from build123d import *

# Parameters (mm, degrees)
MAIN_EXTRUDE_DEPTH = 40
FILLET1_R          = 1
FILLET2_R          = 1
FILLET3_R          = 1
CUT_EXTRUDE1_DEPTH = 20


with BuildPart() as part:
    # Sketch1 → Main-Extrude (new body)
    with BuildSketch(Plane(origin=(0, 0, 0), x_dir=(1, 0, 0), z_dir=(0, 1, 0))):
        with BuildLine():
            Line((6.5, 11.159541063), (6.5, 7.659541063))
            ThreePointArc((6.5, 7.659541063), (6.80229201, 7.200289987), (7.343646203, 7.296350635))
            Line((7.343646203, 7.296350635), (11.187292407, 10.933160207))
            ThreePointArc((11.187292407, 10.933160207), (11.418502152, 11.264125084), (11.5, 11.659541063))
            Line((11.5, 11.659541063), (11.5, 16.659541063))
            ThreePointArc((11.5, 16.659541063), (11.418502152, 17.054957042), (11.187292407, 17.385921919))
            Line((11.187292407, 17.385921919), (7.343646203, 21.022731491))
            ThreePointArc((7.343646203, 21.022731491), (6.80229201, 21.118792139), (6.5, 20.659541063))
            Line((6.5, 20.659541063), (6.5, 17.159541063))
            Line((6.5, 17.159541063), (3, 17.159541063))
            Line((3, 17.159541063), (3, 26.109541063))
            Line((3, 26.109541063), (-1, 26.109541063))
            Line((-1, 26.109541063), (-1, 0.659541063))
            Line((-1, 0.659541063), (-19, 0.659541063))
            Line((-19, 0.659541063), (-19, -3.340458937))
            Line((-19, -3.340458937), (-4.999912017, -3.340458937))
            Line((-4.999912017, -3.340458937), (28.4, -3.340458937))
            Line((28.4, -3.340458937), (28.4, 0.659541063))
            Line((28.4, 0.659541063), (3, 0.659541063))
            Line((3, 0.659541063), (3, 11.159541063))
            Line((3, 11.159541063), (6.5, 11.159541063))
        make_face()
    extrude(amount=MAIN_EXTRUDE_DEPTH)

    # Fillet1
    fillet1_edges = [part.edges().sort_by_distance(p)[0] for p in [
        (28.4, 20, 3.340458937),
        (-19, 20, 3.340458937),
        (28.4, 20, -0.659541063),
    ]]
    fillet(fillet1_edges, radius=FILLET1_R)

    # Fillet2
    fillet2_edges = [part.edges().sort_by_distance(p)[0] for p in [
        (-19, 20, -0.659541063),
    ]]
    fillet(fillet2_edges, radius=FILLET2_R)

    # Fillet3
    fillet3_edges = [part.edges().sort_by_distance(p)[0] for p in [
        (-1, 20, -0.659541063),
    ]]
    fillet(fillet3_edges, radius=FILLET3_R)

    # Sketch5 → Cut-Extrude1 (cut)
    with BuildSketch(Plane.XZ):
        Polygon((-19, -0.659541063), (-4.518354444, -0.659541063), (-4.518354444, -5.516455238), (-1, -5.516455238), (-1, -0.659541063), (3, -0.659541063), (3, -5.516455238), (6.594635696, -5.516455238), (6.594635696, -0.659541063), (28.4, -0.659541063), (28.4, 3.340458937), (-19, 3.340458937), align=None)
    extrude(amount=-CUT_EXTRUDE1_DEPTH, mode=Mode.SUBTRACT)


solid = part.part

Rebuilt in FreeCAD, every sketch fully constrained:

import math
import FreeCAD as App
import Part
import Sketcher


def edges_at(feature, points):
    """Names of the edges that pass closest to the given points."""
    edges = feature.Shape.Edges
    near = lambda p: min(range(len(edges)), key=lambda i: edges[i].distToShape(Part.Vertex(*p))[0])
    return sorted({f"Edge{near(p) + 1}" for p in points})

doc = App.newDocument("Part")
body = doc.addObject("PartDesign::Body", "Body")

# Sketch on XZ plane
sketch1 = doc.addObject("Sketcher::SketchObject", "Sketch")
body.addObject(sketch1)
sketch1.AttachmentSupport = (doc.XZ_Plane, [""])
sketch1.MapMode = "FlatFace"
sketch1.addGeometry([
    Part.LineSegment(App.Vector(6.5, -11.2, 0), App.Vector(6.5, -7.7, 0)),  # 0
    Part.ArcOfCircle(Part.Circle(App.Vector(7, -7.7, 0), App.Vector(0, 0, 1), 0.5), math.radians(47), math.radians(180)),  # 1
    Part.LineSegment(App.Vector(7.3, -7.3, 0), App.Vector(11.2, -10.9, 0)),  # 2
    Part.ArcOfCircle(Part.Circle(App.Vector(10.5, -11.7, 0), App.Vector(0, 0, 1), 1), math.radians(0), math.radians(47)),  # 3
    Part.LineSegment(App.Vector(11.5, -11.7, 0), App.Vector(11.5, -16.7, 0)),  # 4
    Part.ArcOfCircle(Part.Circle(App.Vector(10.5, -16.7, 0), App.Vector(0, 0, 1), 1), math.radians(-47), math.radians(0)),  # 5
    Part.LineSegment(App.Vector(11.2, -17.4, 0), App.Vector(7.3, -21, 0)),  # 6
    Part.ArcOfCircle(Part.Circle(App.Vector(7, -20.7, 0), App.Vector(0, 0, 1), 0.5), math.radians(180), math.radians(313)),  # 7
    Part.LineSegment(App.Vector(6.5, -20.7, 0), App.Vector(6.5, -17.2, 0)),  # 8
    Part.LineSegment(App.Vector(6.5, -17.2, 0), App.Vector(3, -17.2, 0)),  # 9
    Part.LineSegment(App.Vector(3, -17.2, 0), App.Vector(3, -26.1, 0)),  # 10
    Part.LineSegment(App.Vector(3, -26.1, 0), App.Vector(-1, -26.1, 0)),  # 11
    Part.LineSegment(App.Vector(-1, -26.1, 0), App.Vector(-1, -0.7, 0)),  # 12
    Part.LineSegment(App.Vector(-1, -0.7, 0), App.Vector(-19, -0.7, 0)),  # 13
    Part.LineSegment(App.Vector(-19, -0.7, 0), App.Vector(-19, 3.3, 0)),  # 14
    Part.LineSegment(App.Vector(-19, 3.3, 0), App.Vector(28.4, 3.3, 0)),  # 15
    Part.LineSegment(App.Vector(28.4, 3.3, 0), App.Vector(28.4, -0.7, 0)),  # 16
    Part.LineSegment(App.Vector(28.4, -0.7, 0), App.Vector(3, -0.7, 0)),  # 17
    Part.LineSegment(App.Vector(3, -0.7, 0), App.Vector(3, -11.2, 0)),  # 18
    Part.LineSegment(App.Vector(3, -11.2, 0), App.Vector(6.5, -11.2, 0)),  # 19
], False)
sketch1.addConstraint([
    Sketcher.Constraint("Tangent", 0, 2, 1, 2),
    Sketcher.Constraint("Tangent", 1, 1, 2, 1),
    Sketcher.Constraint("Tangent", 2, 2, 3, 2),
    Sketcher.Constraint("Tangent", 3, 1, 4, 1),
    Sketcher.Constraint("Tangent", 4, 2, 5, 2),
    Sketcher.Constraint("Tangent", 5, 1, 6, 1),
    Sketcher.Constraint("Tangent", 6, 2, 7, 2),
    Sketcher.Constraint("Tangent", 7, 1, 8, 1),
    Sketcher.Constraint("Coincident", 8, 2, 9, 1),
    Sketcher.Constraint("Coincident", 9, 2, 10, 1),
    Sketcher.Constraint("Coincident", 10, 2, 11, 1),
    Sketcher.Constraint("Coincident", 11, 2, 12, 1),
    Sketcher.Constraint("Coincident", 12, 2, 13, 1),
    Sketcher.Constraint("Coincident", 13, 2, 14, 1),
    Sketcher.Constraint("Coincident", 14, 2, 15, 1),
    Sketcher.Constraint("Coincident", 15, 2, 16, 1),
    Sketcher.Constraint("Coincident", 16, 2, 17, 1),
    Sketcher.Constraint("Coincident", 17, 2, 18, 1),
    Sketcher.Constraint("Coincident", 18, 2, 19, 1),
    Sketcher.Constraint("Coincident", 19, 2, 0, 1),
    Sketcher.Constraint("Vertical", 0),
    Sketcher.Constraint("Vertical", 4),
    Sketcher.Constraint("Vertical", 8),
    Sketcher.Constraint("Horizontal", 9),
    Sketcher.Constraint("Vertical", 10),
    Sketcher.Constraint("Horizontal", 11),
    Sketcher.Constraint("Vertical", 12),
    Sketcher.Constraint("Horizontal", 13),
    Sketcher.Constraint("Vertical", 14),
    Sketcher.Constraint("Horizontal", 15),
    Sketcher.Constraint("Vertical", 16),
    Sketcher.Constraint("Horizontal", 17),
    Sketcher.Constraint("Vertical", 18),
    Sketcher.Constraint("Horizontal", 19),
    Sketcher.Constraint("Equal", 3, 5),
    Sketcher.Constraint("Equal", 1, 7),
    Sketcher.Constraint("Horizontal", 13, 2, 16, 2),
    Sketcher.Constraint("Vertical", 1, 3, 7, 3),
    Sketcher.Constraint("Vertical", 2, 2, 5, 1),
    Sketcher.Constraint("Vertical", 10, 2, 17, 2),
    Sketcher.Constraint("Equal", 19, 0),
    Sketcher.Constraint("Equal", 0, 8),
    Sketcher.Constraint("Equal", 11, 14),
    Sketcher.Constraint("Radius", 3, 1.0),
    Sketcher.Constraint("Radius", 1, 0.5),
    Sketcher.Constraint("DistanceX", 11, 2, 11, 1, 4.0),
    Sketcher.Constraint("DistanceX", 13, 2, 13, 1, 18.0),
    Sketcher.Constraint("DistanceY", 4, 2, 4, 1, 5.0),
    Sketcher.Constraint("DistanceX", 9, 2, 9, 1, 3.5),
    Sketcher.Constraint("DistanceX", 15, 1, 15, 2, 47.4),
    Sketcher.Constraint("DistanceY", 18, 2, 18, 1, 10.5),
    Sketcher.Constraint("DistanceX", -1, 1, 1, 3, 7.0),
    Sketcher.Constraint("DistanceY", 3, 3, 1, 3, 4.0),
    Sketcher.Constraint("DistanceX", 0, 2, 3, 3, 4.0),
    Sketcher.Constraint("DistanceY", 10, 2, 10, 1, 8.95),
    Sketcher.Constraint("DistanceY", 1, 3, -1, 1, 7.659541),
])
pad1 = doc.addObject("PartDesign::Pad", "Pad")
body.addObject(pad1)
pad1.Profile = sketch1
pad1.Length = 40
pad1.Reversed = True
doc.recompute()

fillet = doc.addObject("PartDesign::Fillet", "Fillet")
body.addObject(fillet)
fillet.Base = (pad1, edges_at(pad1, [(28.4, 20, 3.34), (-19, 20, 3.34), (28.4, 20, -0.66)]))
fillet.Radius = 1
doc.recompute()

fillet2 = doc.addObject("PartDesign::Fillet", "Fillet001")
body.addObject(fillet2)
fillet2.Base = (fillet, edges_at(fillet, [(-19, 20, -0.66)]))
fillet2.Radius = 1
doc.recompute()

fillet3 = doc.addObject("PartDesign::Fillet", "Fillet002")
body.addObject(fillet3)
fillet3.Base = (fillet2, edges_at(fillet2, [(-1, 20, -0.66)]))
fillet3.Radius = 1

# Sketch on XZ plane
sketch2 = doc.addObject("Sketcher::SketchObject", "Sketch001")
body.addObject(sketch2)
sketch2.AttachmentSupport = (doc.XZ_Plane, [""])
sketch2.MapMode = "FlatFace"
sketch2.addGeometry([
    Part.LineSegment(App.Vector(-19, -0.7, 0), App.Vector(-4.5, -0.7, 0)),  # 0
    Part.LineSegment(App.Vector(-4.5, -0.7, 0), App.Vector(-4.5, -5.5, 0)),  # 1
    Part.LineSegment(App.Vector(-4.5, -5.5, 0), App.Vector(-1, -5.5, 0)),  # 2
    Part.LineSegment(App.Vector(-1, -5.5, 0), App.Vector(-1, -0.7, 0)),  # 3
    Part.LineSegment(App.Vector(-1, -0.7, 0), App.Vector(3, -0.7, 0)),  # 4
    Part.LineSegment(App.Vector(3, -0.7, 0), App.Vector(3, -5.5, 0)),  # 5
    Part.LineSegment(App.Vector(3, -5.5, 0), App.Vector(6.6, -5.5, 0)),  # 6
    Part.LineSegment(App.Vector(6.6, -5.5, 0), App.Vector(6.6, -0.7, 0)),  # 7
    Part.LineSegment(App.Vector(6.6, -0.7, 0), App.Vector(28.4, -0.7, 0)),  # 8
    Part.LineSegment(App.Vector(28.4, -0.7, 0), App.Vector(28.4, 3.3, 0)),  # 9
    Part.LineSegment(App.Vector(28.4, 3.3, 0), App.Vector(-19, 3.3, 0)),  # 10
    Part.LineSegment(App.Vector(-19, 3.3, 0), App.Vector(-19, -0.7, 0)),  # 11
], False)
sketch2.addConstraint([
    Sketcher.Constraint("Coincident", 0, 2, 1, 1),
    Sketcher.Constraint("Coincident", 1, 2, 2, 1),
    Sketcher.Constraint("Coincident", 2, 2, 3, 1),
    Sketcher.Constraint("Coincident", 3, 2, 4, 1),
    Sketcher.Constraint("Coincident", 4, 2, 5, 1),
    Sketcher.Constraint("Coincident", 5, 2, 6, 1),
    Sketcher.Constraint("Coincident", 6, 2, 7, 1),
    Sketcher.Constraint("Coincident", 7, 2, 8, 1),
    Sketcher.Constraint("Coincident", 8, 2, 9, 1),
    Sketcher.Constraint("Coincident", 9, 2, 10, 1),
    Sketcher.Constraint("Coincident", 10, 2, 11, 1),
    Sketcher.Constraint("Coincident", 11, 2, 0, 1),
    Sketcher.Constraint("Horizontal", 0),
    Sketcher.Constraint("Vertical", 1),
    Sketcher.Constraint("Horizontal", 2),
    Sketcher.Constraint("Vertical", 3),
    Sketcher.Constraint("Horizontal", 4),
    Sketcher.Constraint("Vertical", 5),
    Sketcher.Constraint("Horizontal", 6),
    Sketcher.Constraint("Vertical", 7),
    Sketcher.Constraint("Horizontal", 8),
    Sketcher.Constraint("Vertical", 9),
    Sketcher.Constraint("Horizontal", 10),
    Sketcher.Constraint("Vertical", 11),
    Sketcher.Constraint("Horizontal", 0, 2, 3, 2),
    Sketcher.Constraint("Horizontal", 2, 2, 5, 2),
    Sketcher.Constraint("Horizontal", 4, 2, 7, 2),
    Sketcher.Constraint("Equal", 4, 9),
    Sketcher.Constraint("DistanceX", 4, 1, 4, 2, 4.0),
    Sketcher.Constraint("DistanceX", 10, 2, 10, 1, 47.4),
    Sketcher.Constraint("DistanceX", 2, 2, -1, 1, 1.0),
    Sketcher.Constraint("DistanceX", 10, 2, -1, 1, 19.0),
    Sketcher.Constraint("DistanceX", 0, 1, 0, 2, 14.481646),
    Sketcher.Constraint("DistanceX", 6, 1, 6, 2, 3.594636),
    Sketcher.Constraint("DistanceY", 1, 2, 1, 1, 4.856914),
    Sketcher.Constraint("DistanceY", 0, 2, -1, 1, 0.659541),
])
pocket1 = doc.addObject("PartDesign::Pocket", "Pocket")
body.addObject(pocket1)
pocket1.Profile = sketch2
pocket1.Length = 20

doc.recompute()
